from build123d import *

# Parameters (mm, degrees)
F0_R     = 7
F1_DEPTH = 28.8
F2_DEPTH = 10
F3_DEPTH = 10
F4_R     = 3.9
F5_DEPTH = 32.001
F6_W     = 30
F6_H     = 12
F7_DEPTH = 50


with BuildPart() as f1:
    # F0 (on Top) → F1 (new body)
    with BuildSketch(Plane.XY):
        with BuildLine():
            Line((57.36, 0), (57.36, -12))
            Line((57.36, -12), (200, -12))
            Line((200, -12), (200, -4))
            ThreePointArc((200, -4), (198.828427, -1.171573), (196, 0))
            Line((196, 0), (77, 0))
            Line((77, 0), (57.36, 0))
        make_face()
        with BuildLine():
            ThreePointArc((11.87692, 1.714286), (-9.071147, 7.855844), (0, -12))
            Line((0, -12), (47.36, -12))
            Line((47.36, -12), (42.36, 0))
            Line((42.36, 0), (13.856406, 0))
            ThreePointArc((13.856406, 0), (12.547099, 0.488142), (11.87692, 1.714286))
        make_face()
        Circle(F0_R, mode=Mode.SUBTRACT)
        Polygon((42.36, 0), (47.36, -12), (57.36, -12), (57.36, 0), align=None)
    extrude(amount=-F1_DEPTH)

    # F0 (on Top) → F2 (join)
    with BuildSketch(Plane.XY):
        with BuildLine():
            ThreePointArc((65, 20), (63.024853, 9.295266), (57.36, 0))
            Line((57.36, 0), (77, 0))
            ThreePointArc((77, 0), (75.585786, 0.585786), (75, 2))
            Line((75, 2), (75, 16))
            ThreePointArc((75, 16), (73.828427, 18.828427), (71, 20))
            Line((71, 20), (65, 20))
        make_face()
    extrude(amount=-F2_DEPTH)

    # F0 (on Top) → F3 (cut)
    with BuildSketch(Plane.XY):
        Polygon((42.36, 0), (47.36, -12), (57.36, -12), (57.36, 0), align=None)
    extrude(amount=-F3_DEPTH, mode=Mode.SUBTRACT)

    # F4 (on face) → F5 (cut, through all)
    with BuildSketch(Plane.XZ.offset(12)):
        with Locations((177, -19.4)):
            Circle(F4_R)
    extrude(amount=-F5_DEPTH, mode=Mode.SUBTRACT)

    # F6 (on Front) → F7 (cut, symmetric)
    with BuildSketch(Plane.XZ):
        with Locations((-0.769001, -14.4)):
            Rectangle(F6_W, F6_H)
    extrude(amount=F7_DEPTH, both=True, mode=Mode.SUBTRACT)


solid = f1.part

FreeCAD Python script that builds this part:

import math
import FreeCAD as App
import Part
import Sketcher

V = App.Vector
Q = App.Units.Quantity


def add_polygon(sketch, points):
    """Adds a closed chain of lines whose ends are joined by coincident constraints."""
    first, n = sketch.GeometryCount, len(points)
    for a, b in zip(points, points[1:] + points[:1]):
        sketch.addGeometry(Part.LineSegment(App.Vector(*a, 0), App.Vector(*b, 0)), False)
    for i in range(n):
        sketch.addConstraint(Sketcher.Constraint("Coincident", first + i, 2, first + (i + 1) % n, 1))

doc = App.newDocument("Part")
body = doc.addObject("PartDesign::Body", "Body")

# Sketch on XY plane
sketch1 = body.newObject("Sketcher::SketchObject", "Sketch")
sketch1.AttachmentSupport = (doc.getObject("XY_Plane"), [""])
sketch1.MapMode = "FlatFace"
sketch1.addGeometry([
    Part.LineSegment(V(200, -12, 0), V(200, -4, 0)),  # 0
    Part.ArcOfCircle(Part.Circle(V(196, -4, 0), V(0, 0, 1), 4), math.radians(0.000006), math.radians(89.999994)),  # 1
    Part.LineSegment(V(196, 0, 0), V(13.856406, 0, 0)),  # 2
    Part.ArcOfCircle(Part.Circle(V(13.856406, 1.999999, 0), V(0, 0, 1), 1.999999), math.radians(-171.786821), math.radians(-89.999996)),  # 3
    Part.ArcOfCircle(Part.Circle(V(0, 0, 0), V(0, 0, 1), 12), math.radians(8.213212), math.radians(269.999999)),  # 4
    Part.LineSegment(V(0, -12, 0), V(200, -12, 0)),  # 5
    Part.Circle(V(0, 0, 0), V(0, 0, 1), 7),  # 6
], False)
sketch1.addConstraint([
    Sketcher.Constraint("Tangent", 0, 2, 1, 1),
    Sketcher.Constraint("Tangent", 1, 2, 2, 1),
    Sketcher.Constraint("Tangent", 2, 2, 3, 2),
    Sketcher.Constraint("Tangent", 3, 1, 4, 1),
    Sketcher.Constraint("Tangent", 4, 2, 5, 1),
    Sketcher.Constraint("Coincident", 5, 2, 0, 1),
    Sketcher.Constraint("Vertical", 0),
    Sketcher.Constraint("Horizontal", 2),
    Sketcher.Constraint("Horizontal", 5),
    Sketcher.Constraint("Coincident", 4, 3, -1, 1),
    Sketcher.Constraint("Coincident", 6, 3, -1, 1),
    Sketcher.Constraint("PointOnObject", 1, 2, -1),
    Sketcher.Constraint("Diameter", 6, Q("14 mm")),
    Sketcher.Constraint("Radius", 1, Q("4 mm")),
    Sketcher.Constraint("Radius", 3, Q("1.999999 mm")),
    Sketcher.Constraint("Radius", 4, Q("12 mm")),
    Sketcher.Constraint("DistanceX", 5, 1, 5, 2, Q("200 mm")),
])
pad1 = body.newObject("PartDesign::Pad", "Pad")
pad1.Profile = sketch1
pad1.Length = 28.8
pad1.Reversed = True

# Sketch on XY plane
sketch2 = body.newObject("Sketcher::SketchObject", "Sketch001")
sketch2.AttachmentSupport = (doc.getObject("XY_Plane"), [""])
sketch2.MapMode = "FlatFace"
sketch2.addGeometry([
    Part.ArcOfCircle(Part.Circle(V(34.999997, 20.000761, 0), V(0, 0, 1), 30.000003), math.radians(-41.81226), math.radians(-0.001454)),  # 0
    Part.LineSegment(V(57.36, 0, 0), V(77, 0, 0)),  # 1
    Part.ArcOfCircle(Part.Circle(V(76.999999, 1.999999, 0), V(0, 0, 1), 1.999999), math.radians(179.999957), math.radians(270.000043)),  # 2
    Part.LineSegment(V(75, 2, 0), V(75, 16, 0)),  # 3
    Part.ArcOfCircle(Part.Circle(V(71, 16, 0), V(0, 0, 1), 4), math.radians(0.000006), math.radians(89.999994)),  # 4
    Part.LineSegment(V(71, 20, 0), V(65, 20, 0)),  # 5
], False)
sketch2.addConstraint([
    Sketcher.Constraint("Coincident", 0, 1, 1, 1),
    Sketcher.Constraint("Tangent", 1, 2, 2, 2),
    Sketcher.Constraint("Tangent", 2, 1, 3, 1),
    Sketcher.Constraint("Tangent", 3, 2, 4, 1),
    Sketcher.Constraint("Tangent", 4, 2, 5, 1),
    Sketcher.Constraint("Coincident", 5, 2, 0, 2),
    Sketcher.Constraint("Horizontal", 1),
    Sketcher.Constraint("Vertical", 3),
    Sketcher.Constraint("Horizontal", 5),
    Sketcher.Constraint("PointOnObject", 0, 1, -1),
    Sketcher.Constraint("Radius", 2, Q("1.999999 mm")),
    Sketcher.Constraint("Radius", 4, Q("4 mm")),
    Sketcher.Constraint("DistanceX", 5, 2, 5, 1, Q("6 mm")),
    Sketcher.Constraint("DistanceY", 3, 1, 3, 2, Q("14 mm")),
    Sketcher.Constraint("DistanceX", -1, 1, 2, 3, Q("76.999999 mm")),
    Sketcher.Constraint("DistanceX", 0, 3, 2, 3, Q("42.000002 mm")),
    Sketcher.Constraint("DistanceX", 1, 1, 1, 2, Q("19.64 mm")),
])
pad2 = body.newObject("PartDesign::Pad", "Pad001")
pad2.Profile = sketch2
pad2.Length = 10
pad2.Reversed = True

# Sketch on XY plane
sketch3 = body.newObject("Sketcher::SketchObject", "Sketch002")
sketch3.AttachmentSupport = (doc.getObject("XY_Plane"), [""])
sketch3.MapMode = "FlatFace"
add_polygon(sketch3, [(42.36, 0), (47.36, -12), (57.36, -12), (57.36, 0)])  # lines 0-3
sketch3.addConstraint([
    Sketcher.Constraint("Horizontal", 1),
    Sketcher.Constraint("Vertical", 2),
    Sketcher.Constraint("Horizontal", 3),
    Sketcher.Constraint("PointOnObject", 2, 2, -1),
    Sketcher.Constraint("DistanceX", 1, 1, 1, 2, Q("10 mm")),
    Sketcher.Constraint("DistanceX", 3, 2, 3, 1, Q("15 mm")),
    Sketcher.Constraint("DistanceY", 2, 1, 2, 2, Q("12 mm")),
    Sketcher.Constraint("DistanceX", -1, 1, 0, 2, Q("47.36 mm")),
])
pocket1 = body.newObject("PartDesign::Pocket", "Pocket")
pocket1.Profile = sketch3
pocket1.Length = 10

# Sketch on XZ plane
sketch4 = body.newObject("Sketcher::SketchObject", "Sketch003")
sketch4.AttachmentSupport = (doc.getObject("XZ_Plane"), [""])
sketch4.MapMode = "FlatFace"
sketch4.AttachmentOffset = App.Placement(V(0, 0, 12), App.Rotation())
sketch4.addGeometry(Part.Circle(V(177, -19.4, 0), V(0, 0, 1), 3.9), False)
sketch4.addConstraint([
    Sketcher.Constraint("Diameter", 0, Q("7.8 mm")),
    Sketcher.Constraint("DistanceX", -1, 1, 0, 3, Q("177 mm")),
    Sketcher.Constraint("DistanceY", 0, 3, -1, 1, Q("19.4 mm")),
])
pocket2 = body.newObject("PartDesign::Pocket", "Pocket001")
pocket2.Profile = sketch4
pocket2.Type = "ThroughAll"

# Sketch on XZ plane
sketch5 = body.newObject("Sketcher::SketchObject", "Sketch004")
sketch5.AttachmentSupport = (doc.getObject("XZ_Plane"), [""])
sketch5.MapMode = "FlatFace"
add_polygon(sketch5, [(-15.769001, -8.4), (-15.769001, -20.4), (14.230999, -20.4), (14.230999, -8.4)])  # lines 0-3
sketch5.addConstraint([
    Sketcher.Constraint("Vertical", 0),
    Sketcher.Constraint("Horizontal", 1),
    Sketcher.Constraint("Vertical", 2),
    Sketcher.Constraint("Horizontal", 3),
    Sketcher.Constraint("DistanceX", 1, 1, 1, 2, Q("30 mm")),
    Sketcher.Constraint("DistanceY", 0, 2, 0, 1, Q("12 mm")),
    Sketcher.Constraint("DistanceY", 0, 2, -1, 1, Q("20.4 mm")),
    Sketcher.Constraint("DistanceX", 0, 2, -1, 1, Q("15.769001 mm")),
])
pocket3 = body.newObject("PartDesign::Pocket", "Pocket002")
pocket3.Profile = sketch5
pocket3.Length = 100
pocket3.Midplane = True

doc.recompute()
